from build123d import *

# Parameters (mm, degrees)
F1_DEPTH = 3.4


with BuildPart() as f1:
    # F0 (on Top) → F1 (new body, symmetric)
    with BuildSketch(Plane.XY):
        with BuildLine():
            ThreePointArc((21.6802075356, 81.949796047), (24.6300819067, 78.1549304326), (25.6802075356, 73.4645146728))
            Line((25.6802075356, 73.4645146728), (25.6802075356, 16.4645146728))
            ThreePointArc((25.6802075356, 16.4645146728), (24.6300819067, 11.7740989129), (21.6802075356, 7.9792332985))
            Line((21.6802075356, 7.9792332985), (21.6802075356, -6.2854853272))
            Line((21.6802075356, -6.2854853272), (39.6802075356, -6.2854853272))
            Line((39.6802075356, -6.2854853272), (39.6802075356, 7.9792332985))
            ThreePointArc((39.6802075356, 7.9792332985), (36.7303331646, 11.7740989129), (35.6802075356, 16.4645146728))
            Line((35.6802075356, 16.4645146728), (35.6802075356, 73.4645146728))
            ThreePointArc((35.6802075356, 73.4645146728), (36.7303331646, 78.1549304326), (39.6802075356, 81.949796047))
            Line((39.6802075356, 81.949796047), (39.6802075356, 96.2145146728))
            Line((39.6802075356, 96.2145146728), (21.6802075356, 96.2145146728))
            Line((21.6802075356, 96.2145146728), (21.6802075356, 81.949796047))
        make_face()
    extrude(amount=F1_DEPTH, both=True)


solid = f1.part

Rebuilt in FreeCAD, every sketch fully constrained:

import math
import FreeCAD as App
import Part
import Sketcher

doc = App.newDocument("Part")
body = doc.addObject("PartDesign::Body", "Body")

# Sketch on XY plane
sketch1 = body.newObject("Sketcher::SketchObject", "Sketch")
sketch1.AttachmentSupport = (doc.getObject("XY_Plane"), [""])
sketch1.MapMode = "FlatFace"
sketch1.addGeometry(Part.ArcOfCircle(Part.Circle(App.Vector(14.680208, 73.464515, 0), App.Vector(0, 0, 1), 11), math.radians(0), math.radians(50.478804)), False)
sketch1.addGeometry(Part.LineSegment(App.Vector(25.680208, 73.464515, 0), App.Vector(25.680208, 16.464515, 0)), False)
sketch1.addGeometry(Part.ArcOfCircle(Part.Circle(App.Vector(14.680208, 16.464515, 0), App.Vector(0, 0, 1), 11), math.radians(-50.478804), math.radians(0)), False)
sketch1.addGeometry(Part.LineSegment(App.Vector(21.680208, 7.979233, 0), App.Vector(21.680208, -6.285485, 0)), False)
sketch1.addGeometry(Part.LineSegment(App.Vector(21.680208, -6.285485, 0), App.Vector(39.680208, -6.285485, 0)), False)
sketch1.addGeometry(Part.LineSegment(App.Vector(39.680208, -6.285485, 0), App.Vector(39.680208, 7.979233, 0)), False)
sketch1.addGeometry(Part.ArcOfCircle(Part.Circle(App.Vector(46.680208, 16.464515, 0), App.Vector(0, 0, 1), 11), math.radians(180), math.radians(230.478804)), False)
sketch1.addGeometry(Part.LineSegment(App.Vector(35.680208, 16.464515, 0), App.Vector(35.680208, 73.464515, 0)), False)
sketch1.addGeometry(Part.ArcOfCircle(Part.Circle(App.Vector(46.680208, 73.464515, 0), App.Vector(0, 0, 1), 11), math.radians(129.521196), math.radians(180)), False)
sketch1.addGeometry(Part.LineSegment(App.Vector(39.680208, 81.949796, 0), App.Vector(39.680208, 96.214515, 0)), False)
sketch1.addGeometry(Part.LineSegment(App.Vector(39.680208, 96.214515, 0), App.Vector(21.680208, 96.214515, 0)), False)
sketch1.addGeometry(Part.LineSegment(App.Vector(21.680208, 96.214515, 0), App.Vector(21.680208, 81.949796, 0)), False)
sketch1.addConstraint(Sketcher.Constraint("Tangent", 0, 1, 1, 1))
sketch1.addConstraint(Sketcher.Constraint("Tangent", 1, 2, 2, 2))
sketch1.addConstraint(Sketcher.Constraint("Coincident", 2, 1, 3, 1))
sketch1.addConstraint(Sketcher.Constraint("Coincident", 3, 2, 4, 1))
sketch1.addConstraint(Sketcher.Constraint("Coincident", 4, 2, 5, 1))
sketch1.addConstraint(Sketcher.Constraint("Coincident", 5, 2, 6, 2))
sketch1.addConstraint(Sketcher.Constraint("Tangent", 6, 1, 7, 1))
sketch1.addConstraint(Sketcher.Constraint("Tangent", 7, 2, 8, 2))
sketch1.addConstraint(Sketcher.Constraint("Coincident", 8, 1, 9, 1))
sketch1.addConstraint(Sketcher.Constraint("Coincident", 9, 2, 10, 1))
sketch1.addConstraint(Sketcher.Constraint("Coincident", 10, 2, 11, 1))
sketch1.addConstraint(Sketcher.Constraint("Coincident", 11, 2, 0, 2))
sketch1.addConstraint(Sketcher.Constraint("Vertical", 1))
sketch1.addConstraint(Sketcher.Constraint("Vertical", 3))
sketch1.addConstraint(Sketcher.Constraint("Horizontal", 4))
sketch1.addConstraint(Sketcher.Constraint("Vertical", 5))
sketch1.addConstraint(Sketcher.Constraint("Vertical", 7))
sketch1.addConstraint(Sketcher.Constraint("Vertical", 9))
sketch1.addConstraint(Sketcher.Constraint("Horizontal", 10))
sketch1.addConstraint(Sketcher.Constraint("Vertical", 11))
sketch1.addConstraint(Sketcher.Constraint("Equal", 0, 2))
sketch1.addConstraint(Sketcher.Constraint("Equal", 2, 6))
sketch1.addConstraint(Sketcher.Constraint("Equal", 6, 8))
sketch1.addConstraint(Sketcher.Constraint("Horizontal", 2, 3, 6, 3))
sketch1.addConstraint(Sketcher.Constraint("Horizontal", 0, 3, 8, 3))
sketch1.addConstraint(Sketcher.Constraint("Horizontal", 2, 1, 5, 2))
sketch1.addConstraint(Sketcher.Constraint("Horizontal", 8, 1, 11, 2))
sketch1.addConstraint(Sketcher.Constraint("Vertical", 5, 2, 8, 1))
sketch1.addConstraint(Sketcher.Constraint("Equal", 5, 9))
sketch1.addConstraint(Sketcher.Constraint("Radius", 0, 11.0))
sketch1.addConstraint(Sketcher.Constraint("DistanceX", 4, 1, 4, 2, 18.0))
sketch1.addConstraint(Sketcher.Constraint("DistanceY", 1, 2, 1, 1, 57.0))
sketch1.addConstraint(Sketcher.Constraint("DistanceX", 2, 3, 6, 3, 32.0))
sketch1.addConstraint(Sketcher.Constraint("DistanceY", 3, 2, 1, 2, 22.75))
sketch1.addConstraint(Sketcher.Constraint("DistanceX", -1, 1, 0, 3, 14.680208))
sketch1.addConstraint(Sketcher.Constraint("DistanceY", -1, 1, 0, 3, 73.464515))
pad1 = body.newObject("PartDesign::Pad", "Pad")
pad1.Profile = sketch1
pad1.Length = 6.8
pad1.Midplane = True

doc.recompute()
